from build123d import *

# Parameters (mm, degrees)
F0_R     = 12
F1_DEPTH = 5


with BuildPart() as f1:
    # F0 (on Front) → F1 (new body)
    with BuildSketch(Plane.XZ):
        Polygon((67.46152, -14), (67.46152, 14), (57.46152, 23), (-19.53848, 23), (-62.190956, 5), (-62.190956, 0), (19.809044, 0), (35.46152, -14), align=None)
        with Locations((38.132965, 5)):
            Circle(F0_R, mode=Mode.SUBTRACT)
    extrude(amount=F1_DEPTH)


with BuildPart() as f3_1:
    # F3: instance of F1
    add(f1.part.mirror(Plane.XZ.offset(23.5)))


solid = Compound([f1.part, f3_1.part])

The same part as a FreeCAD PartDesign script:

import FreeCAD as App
import Part
import Sketcher

doc = App.newDocument("Part")
body = doc.addObject("PartDesign::Body", "Body")

# Sketch on XZ plane
sketch1 = body.newObject("Sketcher::SketchObject", "Sketch")
sketch1.AttachmentSupport = (doc.getObject("XZ_Plane"), [""])
sketch1.MapMode = "FlatFace"
sketch1.addGeometry([
    Part.LineSegment(App.Vector(67, -14, 0), App.Vector(67, 14, 0)),  # 0
    Part.LineSegment(App.Vector(67, 14, 0), App.Vector(57, 23, 0)),  # 1
    Part.LineSegment(App.Vector(57, 23, 0), App.Vector(-20, 23, 0)),  # 2
    Part.LineSegment(App.Vector(-20, 23, 0), App.Vector(-62, 5, 0)),  # 3
    Part.LineSegment(App.Vector(-62, 5, 0), App.Vector(-62, 0, 0)),  # 4
    Part.LineSegment(App.Vector(-62, 0, 0), App.Vector(20, 0, 0)),  # 5
    Part.LineSegment(App.Vector(20, 0, 0), App.Vector(35, -14, 0)),  # 6
    Part.LineSegment(App.Vector(35, -14, 0), App.Vector(67, -14, 0)),  # 7
    Part.Circle(App.Vector(38, 5, 0), App.Vector(0, 0, 1), 12),  # 8
], False)
sketch1.addConstraint([
    Sketcher.Constraint("Coincident", 0, 2, 1, 1),
    Sketcher.Constraint("Coincident", 1, 2, 2, 1),
    Sketcher.Constraint("Coincident", 2, 2, 3, 1),
    Sketcher.Constraint("Coincident", 3, 2, 4, 1),
    Sketcher.Constraint("Coincident", 4, 2, 5, 1),
    Sketcher.Constraint("Coincident", 5, 2, 6, 1),
    Sketcher.Constraint("Coincident", 6, 2, 7, 1),
    Sketcher.Constraint("Coincident", 7, 2, 0, 1),
    Sketcher.Constraint("Vertical", 0),
    Sketcher.Constraint("Horizontal", 2),
    Sketcher.Constraint("Vertical", 4),
    Sketcher.Constraint("Horizontal", 5),
    Sketcher.Constraint("Horizontal", 7),
    Sketcher.Constraint("PointOnObject", 4, 2, -1),
    Sketcher.Constraint("Horizontal", 8, 3, 3, 2),
    Sketcher.Constraint("Diameter", 8, 24.0),
    Sketcher.Constraint("DistanceX", 2, 2, 2, 1, 77.0),
    Sketcher.Constraint("DistanceX", 5, 1, 5, 2, 82.0),
    Sketcher.Constraint("DistanceX", 7, 1, 7, 2, 32.0),
    Sketcher.Constraint("DistanceY", 0, 1, 0, 2, 28.0),
    Sketcher.Constraint("DistanceY", 4, 2, 4, 1, 5.0),
    Sketcher.Constraint("Distance", 6, 21.0),
    Sketcher.Constraint("DistanceY", -1, 1, 0, 2, 14.0),
    Sketcher.Constraint("DistanceY", -1, 1, 1, 2, 23.0),
    Sketcher.Constraint("DistanceX", 1, 2, 0, 2, 10.0),
    Sketcher.Constraint("DistanceX", -1, 1, 0, 2, 67.46152),
    Sketcher.Constraint("DistanceX", 3, 2, 8, 3, 100.323921),
])
pad1 = body.newObject("PartDesign::Pad", "Pad")
pad1.Profile = sketch1
pad1.Length = 5
body2 = doc.addObject("PartDesign::Body", "Body001")
doc.recompute()

mirroring = doc.addObject("Part::Mirroring", "Mirroring")
mirroring.Source = body
mirroring.Base = App.Vector(0, -23.5, 0)
mirroring.Normal = App.Vector(0, -1, 0)
body2.BaseFeature = mirroring
doc.recompute()
mirroring.Visibility = False

doc.recompute()
